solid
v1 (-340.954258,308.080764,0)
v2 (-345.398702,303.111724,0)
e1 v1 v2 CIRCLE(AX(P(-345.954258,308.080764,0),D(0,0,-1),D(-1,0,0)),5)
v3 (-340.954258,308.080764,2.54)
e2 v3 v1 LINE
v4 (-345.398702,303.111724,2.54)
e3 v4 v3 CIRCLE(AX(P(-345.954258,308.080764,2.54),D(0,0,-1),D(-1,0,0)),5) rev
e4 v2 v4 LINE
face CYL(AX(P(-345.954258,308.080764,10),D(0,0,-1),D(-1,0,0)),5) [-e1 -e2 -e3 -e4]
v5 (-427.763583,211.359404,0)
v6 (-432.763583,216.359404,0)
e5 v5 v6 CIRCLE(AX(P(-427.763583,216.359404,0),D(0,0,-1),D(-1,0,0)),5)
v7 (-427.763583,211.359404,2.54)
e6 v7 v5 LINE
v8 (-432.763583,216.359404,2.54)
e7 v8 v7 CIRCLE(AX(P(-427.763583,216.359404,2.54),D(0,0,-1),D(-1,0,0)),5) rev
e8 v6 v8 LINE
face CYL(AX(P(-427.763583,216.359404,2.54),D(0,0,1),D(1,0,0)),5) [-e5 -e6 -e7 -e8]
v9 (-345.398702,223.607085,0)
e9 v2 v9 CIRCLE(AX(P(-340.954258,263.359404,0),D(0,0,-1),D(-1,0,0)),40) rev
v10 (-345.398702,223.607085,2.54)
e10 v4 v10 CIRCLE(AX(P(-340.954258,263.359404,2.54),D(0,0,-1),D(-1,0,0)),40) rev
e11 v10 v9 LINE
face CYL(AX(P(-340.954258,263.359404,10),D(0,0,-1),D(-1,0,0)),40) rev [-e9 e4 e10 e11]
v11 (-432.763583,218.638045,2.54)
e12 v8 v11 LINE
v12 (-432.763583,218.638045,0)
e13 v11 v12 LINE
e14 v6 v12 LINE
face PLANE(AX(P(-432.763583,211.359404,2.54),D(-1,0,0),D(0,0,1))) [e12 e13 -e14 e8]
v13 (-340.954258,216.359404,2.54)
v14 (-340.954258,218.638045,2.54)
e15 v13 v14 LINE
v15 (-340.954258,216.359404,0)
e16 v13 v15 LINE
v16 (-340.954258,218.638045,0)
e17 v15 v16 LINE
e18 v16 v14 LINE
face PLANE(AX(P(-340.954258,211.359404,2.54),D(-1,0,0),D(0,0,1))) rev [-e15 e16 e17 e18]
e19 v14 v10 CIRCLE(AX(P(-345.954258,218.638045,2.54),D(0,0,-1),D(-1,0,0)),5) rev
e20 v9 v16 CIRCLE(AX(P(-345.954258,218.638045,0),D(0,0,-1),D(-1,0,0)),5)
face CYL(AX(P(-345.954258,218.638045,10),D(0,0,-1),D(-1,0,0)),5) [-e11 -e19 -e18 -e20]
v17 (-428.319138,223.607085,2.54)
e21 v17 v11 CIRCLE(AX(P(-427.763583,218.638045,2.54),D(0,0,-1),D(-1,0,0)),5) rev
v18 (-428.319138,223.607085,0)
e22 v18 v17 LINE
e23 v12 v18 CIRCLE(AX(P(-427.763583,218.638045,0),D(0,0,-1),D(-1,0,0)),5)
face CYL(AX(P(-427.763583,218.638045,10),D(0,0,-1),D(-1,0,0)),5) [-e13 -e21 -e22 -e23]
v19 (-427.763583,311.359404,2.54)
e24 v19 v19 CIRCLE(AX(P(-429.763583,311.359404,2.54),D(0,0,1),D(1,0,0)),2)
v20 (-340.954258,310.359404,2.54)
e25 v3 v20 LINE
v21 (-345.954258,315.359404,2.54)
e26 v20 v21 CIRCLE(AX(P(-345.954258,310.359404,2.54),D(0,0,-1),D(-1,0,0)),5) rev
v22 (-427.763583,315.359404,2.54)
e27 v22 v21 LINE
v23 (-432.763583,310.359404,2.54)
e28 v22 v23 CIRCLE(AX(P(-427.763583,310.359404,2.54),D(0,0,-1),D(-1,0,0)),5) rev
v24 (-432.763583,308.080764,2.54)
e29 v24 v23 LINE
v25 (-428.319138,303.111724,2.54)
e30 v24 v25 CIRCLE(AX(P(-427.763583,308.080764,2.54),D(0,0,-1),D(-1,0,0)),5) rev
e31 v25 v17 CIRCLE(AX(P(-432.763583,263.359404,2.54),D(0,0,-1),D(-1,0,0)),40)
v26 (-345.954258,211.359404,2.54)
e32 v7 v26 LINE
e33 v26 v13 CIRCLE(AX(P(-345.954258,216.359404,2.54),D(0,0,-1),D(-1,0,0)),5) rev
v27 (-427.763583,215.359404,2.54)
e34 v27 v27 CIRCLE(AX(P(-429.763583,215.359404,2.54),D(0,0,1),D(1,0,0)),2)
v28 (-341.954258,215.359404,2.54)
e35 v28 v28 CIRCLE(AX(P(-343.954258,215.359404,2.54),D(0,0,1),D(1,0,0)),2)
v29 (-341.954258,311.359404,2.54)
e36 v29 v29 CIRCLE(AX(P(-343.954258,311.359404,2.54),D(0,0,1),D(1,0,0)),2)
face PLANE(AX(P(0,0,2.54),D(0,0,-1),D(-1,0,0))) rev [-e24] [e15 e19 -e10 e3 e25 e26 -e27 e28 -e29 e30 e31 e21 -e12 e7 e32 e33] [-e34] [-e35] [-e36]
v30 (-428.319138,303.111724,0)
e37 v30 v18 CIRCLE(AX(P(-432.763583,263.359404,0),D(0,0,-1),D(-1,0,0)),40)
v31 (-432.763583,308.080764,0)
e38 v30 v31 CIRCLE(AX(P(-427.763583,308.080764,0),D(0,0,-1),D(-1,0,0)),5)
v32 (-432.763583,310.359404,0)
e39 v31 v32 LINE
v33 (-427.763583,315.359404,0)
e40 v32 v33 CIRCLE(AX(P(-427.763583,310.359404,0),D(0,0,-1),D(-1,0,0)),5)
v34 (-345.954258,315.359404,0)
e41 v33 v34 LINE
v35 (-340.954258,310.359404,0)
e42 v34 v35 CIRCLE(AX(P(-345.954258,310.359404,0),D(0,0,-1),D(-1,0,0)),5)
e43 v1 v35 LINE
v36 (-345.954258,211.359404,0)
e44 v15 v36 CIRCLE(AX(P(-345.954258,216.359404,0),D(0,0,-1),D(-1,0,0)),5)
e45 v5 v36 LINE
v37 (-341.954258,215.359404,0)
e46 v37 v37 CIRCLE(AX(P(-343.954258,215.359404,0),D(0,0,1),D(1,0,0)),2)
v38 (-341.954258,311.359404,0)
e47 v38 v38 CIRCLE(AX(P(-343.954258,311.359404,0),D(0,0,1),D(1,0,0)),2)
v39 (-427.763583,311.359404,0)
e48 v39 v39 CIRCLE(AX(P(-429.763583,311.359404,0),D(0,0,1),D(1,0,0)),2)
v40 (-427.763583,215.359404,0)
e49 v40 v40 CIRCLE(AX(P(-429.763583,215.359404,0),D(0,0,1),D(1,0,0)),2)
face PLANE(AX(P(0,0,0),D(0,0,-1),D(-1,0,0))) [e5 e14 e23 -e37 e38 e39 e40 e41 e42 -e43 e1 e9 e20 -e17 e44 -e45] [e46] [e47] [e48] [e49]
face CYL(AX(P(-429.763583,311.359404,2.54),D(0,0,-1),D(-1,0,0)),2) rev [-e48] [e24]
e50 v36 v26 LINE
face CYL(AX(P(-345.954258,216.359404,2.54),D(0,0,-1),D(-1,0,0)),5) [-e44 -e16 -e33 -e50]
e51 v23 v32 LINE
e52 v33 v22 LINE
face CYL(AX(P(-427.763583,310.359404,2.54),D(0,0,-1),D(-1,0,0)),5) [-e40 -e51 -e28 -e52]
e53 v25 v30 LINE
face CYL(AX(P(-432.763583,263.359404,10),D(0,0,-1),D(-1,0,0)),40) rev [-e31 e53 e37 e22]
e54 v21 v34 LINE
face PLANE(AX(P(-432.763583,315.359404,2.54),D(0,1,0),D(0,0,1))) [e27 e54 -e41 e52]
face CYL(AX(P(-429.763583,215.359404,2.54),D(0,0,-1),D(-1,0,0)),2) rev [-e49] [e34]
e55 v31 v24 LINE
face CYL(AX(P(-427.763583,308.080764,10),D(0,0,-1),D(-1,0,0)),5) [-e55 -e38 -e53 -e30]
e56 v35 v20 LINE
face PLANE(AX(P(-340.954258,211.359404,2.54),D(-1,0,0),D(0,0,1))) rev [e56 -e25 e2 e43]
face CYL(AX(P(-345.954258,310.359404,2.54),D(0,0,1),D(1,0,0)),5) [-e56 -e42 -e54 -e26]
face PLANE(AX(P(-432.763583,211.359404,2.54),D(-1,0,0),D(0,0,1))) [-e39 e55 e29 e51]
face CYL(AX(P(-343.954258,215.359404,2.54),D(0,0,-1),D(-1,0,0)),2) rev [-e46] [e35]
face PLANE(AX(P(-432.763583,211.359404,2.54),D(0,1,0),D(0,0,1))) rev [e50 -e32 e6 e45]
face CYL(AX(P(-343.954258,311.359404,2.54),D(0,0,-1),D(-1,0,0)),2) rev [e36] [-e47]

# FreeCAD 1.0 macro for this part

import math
import FreeCAD as App
import Part
import Sketcher

V = App.Vector
Q = App.Units.Quantity


def edges_at(feature, points):
    """Names of the edges that pass closest to the given points."""
    edges = feature.Shape.Edges
    near = lambda p: min(range(len(edges)), key=lambda i: edges[i].distToShape(Part.Vertex(*p))[0])
    return sorted({f"Edge{near(p) + 1}" for p in points})


def add_polygon(sketch, points):
    """Adds a closed chain of lines whose ends are joined by coincident constraints."""
    first, n = sketch.GeometryCount, len(points)
    for a, b in zip(points, points[1:] + points[:1]):
        sketch.addGeometry(Part.LineSegment(App.Vector(*a, 0), App.Vector(*b, 0)), False)
    for i in range(n):
        sketch.addConstraint(Sketcher.Constraint("Coincident", first + i, 2, first + (i + 1) % n, 1))

doc = App.newDocument("Part")
body = doc.addObject("PartDesign::Body", "Body")

# Sketch on XY plane
sketch1 = body.newObject("Sketcher::SketchObject", "Sketch")
sketch1.AttachmentSupport = (doc.getObject("XY_Plane"), [""])
sketch1.MapMode = "FlatFace"
add_polygon(sketch1, [(-433, 315), (-433, 211), (-341, 211), (-341, 315)])  # lines 0-3
sketch1.addConstraint([
    Sketcher.Constraint("Vertical", 0),
    Sketcher.Constraint("Horizontal", 1),
    Sketcher.Constraint("Vertical", 2),
    Sketcher.Constraint("Horizontal", 3),
    Sketcher.Constraint("DistanceY", 0, 2, 0, 1, Q("104 mm")),
    Sketcher.Constraint("DistanceX", 1, 1, 1, 2, Q("91.809325 mm")),
    Sketcher.Constraint("DistanceX", 0, 2, -1, 1, Q("432.763583 mm")),
    Sketcher.Constraint("DistanceY", -1, 1, 0, 2, Q("211.359404 mm")),
])
pad1 = body.newObject("PartDesign::Pad", "Pad")
pad1.Profile = sketch1
pad1.Length = 2.54

# Sketch on XY plane
sketch2 = body.newObject("Sketcher::SketchObject", "Sketch001")
sketch2.AttachmentSupport = (doc.getObject("XY_Plane"), [""])
sketch2.MapMode = "FlatFace"
sketch2.addGeometry([
    Part.Circle(V(-344, 311.4, 0), V(0, 0, 1), 2),
    Part.Circle(V(-429.8, 311.4, 0), V(0, 0, 1), 2),
    Part.Circle(V(-429.8, 215.4, 0), V(0, 0, 1), 2),
    Part.Circle(V(-344, 215.4, 0), V(0, 0, 1), 2),
], False)
sketch2.addConstraint([
    Sketcher.Constraint("Equal", 0, 1),
    Sketcher.Constraint("Equal", 1, 2),
    Sketcher.Constraint("Equal", 2, 3),
    Sketcher.Constraint("Horizontal", 0, 3, 1, 3),
    Sketcher.Constraint("Horizontal", 2, 3, 3, 3),
    Sketcher.Constraint("Vertical", 1, 3, 2, 3),
    Sketcher.Constraint("Vertical", 0, 3, 3, 3),
    Sketcher.Constraint("Diameter", 0, Q("4 mm")),
    Sketcher.Constraint("DistanceY", 2, 3, 1, 3, Q("96 mm")),
    Sketcher.Constraint("DistanceX", 0, 3, -1, 1, Q("343.954258 mm")),
    Sketcher.Constraint("DistanceY", -1, 1, 0, 3, Q("311.359404 mm")),
    Sketcher.Constraint("DistanceX", 1, 3, -1, 1, Q("429.763583 mm")),
])
pocket1 = body.newObject("PartDesign::Pocket", "Pocket")
pocket1.Profile = sketch2
pocket1.Type = "ThroughAll"
pocket1.Reversed = True

# Sketch on XY plane
sketch3 = body.newObject("Sketcher::SketchObject", "Sketch002")
sketch3.AttachmentSupport = (doc.getObject("XY_Plane"), [""])
sketch3.MapMode = "FlatFace"
sketch3.addGeometry([
    Part.ArcOfCircle(Part.Circle(V(-341, 263, 0), V(0, 0, 1), 40), math.radians(180), math.radians(270)),  # 0
    Part.ArcOfCircle(Part.Circle(V(-341, 263, 0), V(0, 0, 1), 40), math.radians(90), math.radians(180)),  # 1
    Part.LineSegment(V(-341, 303, 0), V(-341, 223, 0)),  # 2
    Part.ArcOfCircle(Part.Circle(V(-433, 263, 0), V(0, 0, 1), 40), math.radians(0), math.radians(90)),  # 3
    Part.ArcOfCircle(Part.Circle(V(-433, 263, 0), V(0, 0, 1), 40), math.radians(-90), math.radians(0)),  # 4
    Part.LineSegment(V(-433, 223, 0), V(-433, 303, 0)),  # 5
], False)
sketch3.addConstraint([
    Sketcher.Constraint("Tangent", 0, 1, 1, 2),
    Sketcher.Constraint("Coincident", 1, 1, 2, 1),
    Sketcher.Constraint("Coincident", 2, 2, 0, 2),
    Sketcher.Constraint("Tangent", 3, 1, 4, 2),
    Sketcher.Constraint("Coincident", 4, 1, 5, 1),
    Sketcher.Constraint("Coincident", 5, 2, 3, 2),
    Sketcher.Constraint("Vertical", 2),
    Sketcher.Constraint("Vertical", 5),
    Sketcher.Constraint("Equal", 0, 1),
    Sketcher.Constraint("Equal", 1, 3),
    Sketcher.Constraint("Equal", 3, 4),
    Sketcher.Constraint("Horizontal", 1, 3, 3, 3),
    Sketcher.Constraint("Horizontal", 4, 3, 0, 1),
    Sketcher.Constraint("Horizontal", 0, 1, 3, 1),
    Sketcher.Constraint("Vertical", 0, 3, 1, 1),
    Sketcher.Constraint("Vertical", 3, 3, 4, 1),
    Sketcher.Constraint("Radius", 0, Q("40 mm")),
    Sketcher.Constraint("DistanceX", 0, 3, -1, 1, Q("340.954258 mm")),
    Sketcher.Constraint("DistanceY", -1, 1, 0, 3, Q("263.359404 mm")),
    Sketcher.Constraint("DistanceX", 3, 3, -1, 1, Q("432.763583 mm")),
])
pocket2 = body.newObject("PartDesign::Pocket", "Pocket001")
pocket2.Profile = sketch3
pocket2.Length = 10
pocket2.Reversed = True
doc.recompute()

fillet = body.newObject("PartDesign::Fillet", "Fillet")
fillet.Base = (pocket2, edges_at(pocket2, [
    (-340.954, 303.359, 1.27),
    (-340.954, 223.359, 1.27),
    (-432.764, 303.359, 1.27),
    (-432.764, 223.359, 1.27),
    (-432.764, 211.359, 1.27),
    (-340.954, 211.359, 1.27),
    (-340.954, 315.359, 1.27),
    (-432.764, 315.359, 1.27),
]))
fillet.Radius = 5

doc.recompute()
